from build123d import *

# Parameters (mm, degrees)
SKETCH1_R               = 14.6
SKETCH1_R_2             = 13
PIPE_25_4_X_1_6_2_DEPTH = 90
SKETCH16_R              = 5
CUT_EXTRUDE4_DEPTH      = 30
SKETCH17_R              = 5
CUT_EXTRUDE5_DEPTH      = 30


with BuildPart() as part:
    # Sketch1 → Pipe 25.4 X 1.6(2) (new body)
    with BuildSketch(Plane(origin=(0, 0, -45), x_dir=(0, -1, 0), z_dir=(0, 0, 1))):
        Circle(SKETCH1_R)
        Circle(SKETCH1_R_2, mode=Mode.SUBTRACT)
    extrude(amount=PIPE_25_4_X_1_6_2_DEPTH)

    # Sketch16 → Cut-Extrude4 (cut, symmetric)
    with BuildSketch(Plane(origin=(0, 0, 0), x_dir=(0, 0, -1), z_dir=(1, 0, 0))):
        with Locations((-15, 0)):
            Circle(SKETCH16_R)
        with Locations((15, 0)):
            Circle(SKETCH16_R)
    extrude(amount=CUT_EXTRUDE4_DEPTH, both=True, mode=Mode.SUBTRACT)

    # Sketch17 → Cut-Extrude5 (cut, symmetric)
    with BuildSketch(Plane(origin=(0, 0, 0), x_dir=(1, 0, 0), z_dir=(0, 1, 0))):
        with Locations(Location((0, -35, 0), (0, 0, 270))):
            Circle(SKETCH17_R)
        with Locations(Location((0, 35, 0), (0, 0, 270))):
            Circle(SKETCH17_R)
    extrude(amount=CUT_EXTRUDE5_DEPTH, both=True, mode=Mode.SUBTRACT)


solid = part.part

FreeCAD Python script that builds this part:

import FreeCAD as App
import Part
import Sketcher
from FreeCAD import Vector

doc = App.newDocument("Part")
body = doc.addObject("PartDesign::Body", "Body")

sketch1 = body.newObject("Sketcher::SketchObject", "Sketch")
sketch1.AttachmentSupport = (doc.getObject("XY_Plane"), [""])
sketch1.MapMode = "FlatFace"
sketch1.AttachmentOffset = App.Placement(Vector(0, 0, -45), App.Rotation())
sketch1.addGeometry(Part.Circle(Vector(0, 0, 0), Vector(0, 0, 1), 15), False)
sketch1.addGeometry(Part.Circle(Vector(0, 0, 0), Vector(0, 0, 1), 13), False)
sketch1.addConstraint(Sketcher.Constraint("Coincident", 0, 3, -1, 1))
sketch1.addConstraint(Sketcher.Constraint("Coincident", 1, 3, -1, 1))
sketch1.addConstraint(Sketcher.Constraint("Diameter", 1, 26.0))
sketch1.addConstraint(Sketcher.Constraint("Diameter", 0, 29.2))
pad1 = body.newObject("PartDesign::Pad", "Pad")
pad1.Profile = sketch1
pad1.Length = 90

sketch2 = body.newObject("Sketcher::SketchObject", "Sketch001")
sketch2.AttachmentSupport = (doc.getObject("YZ_Plane"), [""])
sketch2.MapMode = "FlatFace"
sketch2.addGeometry(Part.Circle(Vector(0, 15, 0), Vector(0, 0, 1), 5), False)
sketch2.addGeometry(Part.Circle(Vector(0, -15, 0), Vector(0, 0, 1), 5), False)
sketch2.addConstraint(Sketcher.Constraint("Equal", 0, 1))
sketch2.addConstraint(Sketcher.Constraint("Symmetric", 0, 3, 1, 3, -1, 1))
sketch2.addConstraint(Sketcher.Constraint("PointOnObject", 0, 3, -2))
sketch2.addConstraint(Sketcher.Constraint("Diameter", 0, 10.0))
sketch2.addConstraint(Sketcher.Constraint("DistanceY", -1, 1, 0, 3, 15.0))
pocket1 = body.newObject("PartDesign::Pocket", "Pocket")
pocket1.Profile = sketch2
pocket1.Length = 60
pocket1.Midplane = True

sketch3 = body.newObject("Sketcher::SketchObject", "Sketch002")
sketch3.AttachmentSupport = (doc.getObject("XZ_Plane"), [""])
sketch3.MapMode = "FlatFace"
sketch3.addGeometry(Part.Circle(Vector(0, 35, 0), Vector(0, 0, 1), 5), False)
sketch3.addGeometry(Part.Circle(Vector(0, -35, 0), Vector(0, 0, 1), 5), False)
sketch3.addConstraint(Sketcher.Constraint("Equal", 0, 1))
sketch3.addConstraint(Sketcher.Constraint("Symmetric", 0, 3, 1, 3, -1, 1))
sketch3.addConstraint(Sketcher.Constraint("PointOnObject", 0, 3, -2))
sketch3.addConstraint(Sketcher.Constraint("Diameter", 0, 10.0))
sketch3.addConstraint(Sketcher.Constraint("DistanceY", -1, 1, 0, 3, 35.0))
pocket2 = body.newObject("PartDesign::Pocket", "Pocket001")
pocket2.Profile = sketch3
pocket2.Length = 60
pocket2.Midplane = True

doc.recompute()
